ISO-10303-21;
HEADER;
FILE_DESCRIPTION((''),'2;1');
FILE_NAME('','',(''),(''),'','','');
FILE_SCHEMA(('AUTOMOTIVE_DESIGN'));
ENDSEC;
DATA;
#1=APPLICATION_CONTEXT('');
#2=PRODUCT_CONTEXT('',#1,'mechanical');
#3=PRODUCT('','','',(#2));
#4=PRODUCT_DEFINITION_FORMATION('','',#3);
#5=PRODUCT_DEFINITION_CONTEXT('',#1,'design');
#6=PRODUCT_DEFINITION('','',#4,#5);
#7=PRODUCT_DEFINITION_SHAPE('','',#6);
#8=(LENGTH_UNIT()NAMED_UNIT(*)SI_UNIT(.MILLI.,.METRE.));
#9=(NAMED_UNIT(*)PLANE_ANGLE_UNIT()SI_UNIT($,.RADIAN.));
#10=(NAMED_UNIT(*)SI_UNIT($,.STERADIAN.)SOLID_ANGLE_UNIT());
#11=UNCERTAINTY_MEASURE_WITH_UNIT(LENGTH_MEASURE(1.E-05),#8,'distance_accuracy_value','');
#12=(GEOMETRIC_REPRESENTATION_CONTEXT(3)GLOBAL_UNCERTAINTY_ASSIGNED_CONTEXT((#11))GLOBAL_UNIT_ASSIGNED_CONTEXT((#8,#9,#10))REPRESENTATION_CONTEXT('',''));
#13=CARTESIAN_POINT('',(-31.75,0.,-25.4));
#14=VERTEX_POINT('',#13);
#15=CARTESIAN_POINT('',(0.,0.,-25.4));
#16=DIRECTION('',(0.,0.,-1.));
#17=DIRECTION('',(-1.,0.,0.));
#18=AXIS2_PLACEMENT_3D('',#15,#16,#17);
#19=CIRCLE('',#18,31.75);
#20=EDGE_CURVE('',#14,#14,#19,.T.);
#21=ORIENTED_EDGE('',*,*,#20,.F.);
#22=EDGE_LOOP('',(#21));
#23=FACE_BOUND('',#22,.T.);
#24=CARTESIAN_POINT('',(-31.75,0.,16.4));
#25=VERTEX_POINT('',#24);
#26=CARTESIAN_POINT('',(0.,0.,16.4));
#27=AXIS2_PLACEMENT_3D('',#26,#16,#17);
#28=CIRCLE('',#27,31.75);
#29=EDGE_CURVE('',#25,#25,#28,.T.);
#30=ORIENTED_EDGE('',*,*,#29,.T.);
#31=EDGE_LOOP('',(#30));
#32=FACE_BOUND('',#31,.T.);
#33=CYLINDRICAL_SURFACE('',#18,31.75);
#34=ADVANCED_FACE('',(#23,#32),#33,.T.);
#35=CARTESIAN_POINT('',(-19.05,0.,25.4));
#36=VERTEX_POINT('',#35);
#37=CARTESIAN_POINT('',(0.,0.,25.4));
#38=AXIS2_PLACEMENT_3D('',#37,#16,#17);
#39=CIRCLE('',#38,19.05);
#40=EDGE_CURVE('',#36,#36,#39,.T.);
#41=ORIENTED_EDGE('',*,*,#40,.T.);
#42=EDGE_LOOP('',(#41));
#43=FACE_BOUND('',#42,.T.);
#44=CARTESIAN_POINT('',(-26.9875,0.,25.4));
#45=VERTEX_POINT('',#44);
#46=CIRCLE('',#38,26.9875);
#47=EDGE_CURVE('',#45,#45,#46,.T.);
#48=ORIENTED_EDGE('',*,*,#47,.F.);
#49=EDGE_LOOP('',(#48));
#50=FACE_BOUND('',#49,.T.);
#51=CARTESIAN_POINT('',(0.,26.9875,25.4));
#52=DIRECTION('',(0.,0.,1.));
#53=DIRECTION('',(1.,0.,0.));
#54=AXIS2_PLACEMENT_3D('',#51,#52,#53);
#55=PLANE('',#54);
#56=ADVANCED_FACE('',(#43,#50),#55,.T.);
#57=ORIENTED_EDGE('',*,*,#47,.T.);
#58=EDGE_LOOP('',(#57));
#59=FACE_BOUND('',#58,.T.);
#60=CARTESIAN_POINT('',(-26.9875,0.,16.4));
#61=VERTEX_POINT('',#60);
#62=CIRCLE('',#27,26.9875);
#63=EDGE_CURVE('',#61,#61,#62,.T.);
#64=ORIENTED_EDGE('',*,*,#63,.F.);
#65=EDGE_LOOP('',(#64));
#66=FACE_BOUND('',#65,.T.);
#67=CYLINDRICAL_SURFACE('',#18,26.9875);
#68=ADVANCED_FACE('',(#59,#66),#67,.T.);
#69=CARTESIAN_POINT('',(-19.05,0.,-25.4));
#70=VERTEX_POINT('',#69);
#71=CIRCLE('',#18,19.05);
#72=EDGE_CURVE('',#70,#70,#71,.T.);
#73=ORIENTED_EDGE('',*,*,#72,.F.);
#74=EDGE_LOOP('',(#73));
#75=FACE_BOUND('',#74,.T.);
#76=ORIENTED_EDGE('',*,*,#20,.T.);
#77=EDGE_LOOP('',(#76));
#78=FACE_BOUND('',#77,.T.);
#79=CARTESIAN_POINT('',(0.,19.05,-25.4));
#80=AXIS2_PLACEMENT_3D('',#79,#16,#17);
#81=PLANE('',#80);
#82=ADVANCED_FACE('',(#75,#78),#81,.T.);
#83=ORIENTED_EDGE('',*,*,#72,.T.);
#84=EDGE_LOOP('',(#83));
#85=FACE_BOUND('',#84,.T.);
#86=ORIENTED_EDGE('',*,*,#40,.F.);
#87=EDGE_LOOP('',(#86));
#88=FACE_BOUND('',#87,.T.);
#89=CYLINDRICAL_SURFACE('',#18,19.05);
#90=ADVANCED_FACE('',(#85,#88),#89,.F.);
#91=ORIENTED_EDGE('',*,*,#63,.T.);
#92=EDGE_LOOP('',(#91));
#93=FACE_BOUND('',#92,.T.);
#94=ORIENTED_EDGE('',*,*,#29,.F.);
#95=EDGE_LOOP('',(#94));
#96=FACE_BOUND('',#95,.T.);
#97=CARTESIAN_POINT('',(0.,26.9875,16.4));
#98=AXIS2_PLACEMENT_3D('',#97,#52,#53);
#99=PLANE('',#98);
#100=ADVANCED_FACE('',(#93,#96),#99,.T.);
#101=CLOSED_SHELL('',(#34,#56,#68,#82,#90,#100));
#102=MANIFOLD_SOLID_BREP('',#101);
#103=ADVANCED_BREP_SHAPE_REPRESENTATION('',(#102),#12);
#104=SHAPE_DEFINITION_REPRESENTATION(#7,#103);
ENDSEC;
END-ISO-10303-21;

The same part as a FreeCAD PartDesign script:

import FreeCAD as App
import Part
import Sketcher
Q = App.Units.Quantity

doc = App.newDocument("Part")
body = doc.addObject("PartDesign::Body", "Body")

# Sketch on YZ plane
sketch1 = body.newObject("Sketcher::SketchObject", "Sketch")
sketch1.AttachmentSupport = (doc.getObject("YZ_Plane"), [""])
sketch1.MapMode = "FlatFace"
sketch1.addGeometry([
    Part.LineSegment(App.Vector(27, 16.4, 0), App.Vector(27, 25.4, 0)),  # 0
    Part.LineSegment(App.Vector(27, 25.4, 0), App.Vector(19.1, 25.4, 0)),  # 1
    Part.LineSegment(App.Vector(19.1, 25.4, 0), App.Vector(19.1, -25.4, 0)),  # 2
    Part.LineSegment(App.Vector(19.1, -25.4, 0), App.Vector(31.8, -25.4, 0)),  # 3
    Part.LineSegment(App.Vector(31.8, -25.4, 0), App.Vector(31.8, 16.4, 0)),  # 4
    Part.LineSegment(App.Vector(31.8, 16.4, 0), App.Vector(27, 16.4, 0)),  # 5
], False)
sketch1.addConstraint([
    Sketcher.Constraint("Coincident", 0, 2, 1, 1),
    Sketcher.Constraint("Coincident", 1, 2, 2, 1),
    Sketcher.Constraint("Coincident", 2, 2, 3, 1),
    Sketcher.Constraint("Coincident", 3, 2, 4, 1),
    Sketcher.Constraint("Coincident", 4, 2, 5, 1),
    Sketcher.Constraint("Coincident", 5, 2, 0, 1),
    Sketcher.Constraint("Vertical", 0),
    Sketcher.Constraint("Horizontal", 1),
    Sketcher.Constraint("Vertical", 2),
    Sketcher.Constraint("Horizontal", 3),
    Sketcher.Constraint("Vertical", 4),
    Sketcher.Constraint("Horizontal", 5),
    Sketcher.Constraint("DistanceY", 2, 2, 2, 1, Q("2 in")),
    Sketcher.Constraint("DistanceX", 3, 1, 3, 2, Q("0.5 in")),
    Sketcher.Constraint("DistanceY", -1, 1, 0, 2, Q("1 in")),
    Sketcher.Constraint("DistanceX", 1, 2, 1, 1, Q("0.3125 in")),
    Sketcher.Constraint("DistanceX", -1, 1, 1, 2, Q("0.75 in")),
    Sketcher.Constraint("DistanceY", 0, 1, 0, 2, Q("9 mm")),
])
revolution = body.newObject("PartDesign::Revolution", "Revolution")
revolution.Profile = sketch1
revolution.ReferenceAxis = (sketch1, ["V_Axis"])
revolution.Angle = 360

doc.recompute()
